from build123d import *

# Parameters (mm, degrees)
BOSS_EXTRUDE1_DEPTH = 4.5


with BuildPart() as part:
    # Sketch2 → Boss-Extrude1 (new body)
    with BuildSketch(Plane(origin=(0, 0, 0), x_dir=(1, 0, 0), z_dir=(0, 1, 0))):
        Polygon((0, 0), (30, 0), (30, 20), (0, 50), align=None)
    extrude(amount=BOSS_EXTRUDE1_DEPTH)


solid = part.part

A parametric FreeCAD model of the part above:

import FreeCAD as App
import Part
import Sketcher
from FreeCAD import Vector
Q = App.Units.Quantity

doc = App.newDocument("Part")
params = doc.addObject("Spreadsheet::Sheet", "Params")
for row, (alias, value) in enumerate([
    ("sketch1_width", "30 mm"),
    ("sketch1_height", "20 mm"),
    ("sketch1_height2", "50 mm"),
    ("pad1_length", "4.5 mm"),
], start=1):
    params.set(f"A{row}", alias)
    params.set(f"B{row}", "=" + value)
    params.setAlias(f"B{row}", alias)

body = doc.addObject("PartDesign::Body", "Body")

# Sketch on XZ plane
sketch1 = body.newObject("Sketcher::SketchObject", "Sketch")
sketch1.AttachmentSupport = (doc.getObject("XZ_Plane"), [""])
sketch1.MapMode = "FlatFace"
sketch1.addGeometry([
    Part.LineSegment(Vector(0, 0, 0), Vector(30, 0, 0)),
    Part.LineSegment(Vector(30, 0, 0), Vector(30, -20, 0)),
    Part.LineSegment(Vector(30, -20, 0), Vector(0, -50, 0)),
    Part.LineSegment(Vector(0, -50, 0), Vector(0, 0, 0)),
], False)
sketch1.addConstraint([
    Sketcher.Constraint("Coincident", 0, 2, 1, 1),
    Sketcher.Constraint("Coincident", 1, 2, 2, 1),
    Sketcher.Constraint("Coincident", 2, 2, 3, 1),
    Sketcher.Constraint("Coincident", 3, 2, 0, 1),
    Sketcher.Constraint("Horizontal", 0),
    Sketcher.Constraint("Vertical", 1),
    Sketcher.Constraint("Vertical", 3),
    Sketcher.Constraint("Coincident", 3, 2, -1, 1),
    Sketcher.Constraint("DistanceX", 0, 1, 0, 2, Q("30 mm")),
    Sketcher.Constraint("DistanceY", 1, 2, 1, 1, Q("20 mm")),
    Sketcher.Constraint("DistanceY", 3, 1, 3, 2, Q("50 mm")),
])
sketch1.setExpression("Constraints[8]", "Params.sketch1_width")
sketch1.setExpression("Constraints[9]", "Params.sketch1_height")
sketch1.setExpression("Constraints[10]", "Params.sketch1_height2")
pad1 = body.newObject("PartDesign::Pad", "Pad")
pad1.Profile = sketch1
pad1.setExpression("Length", "Params.pad1_length")
pad1.Reversed = True

doc.recompute()
